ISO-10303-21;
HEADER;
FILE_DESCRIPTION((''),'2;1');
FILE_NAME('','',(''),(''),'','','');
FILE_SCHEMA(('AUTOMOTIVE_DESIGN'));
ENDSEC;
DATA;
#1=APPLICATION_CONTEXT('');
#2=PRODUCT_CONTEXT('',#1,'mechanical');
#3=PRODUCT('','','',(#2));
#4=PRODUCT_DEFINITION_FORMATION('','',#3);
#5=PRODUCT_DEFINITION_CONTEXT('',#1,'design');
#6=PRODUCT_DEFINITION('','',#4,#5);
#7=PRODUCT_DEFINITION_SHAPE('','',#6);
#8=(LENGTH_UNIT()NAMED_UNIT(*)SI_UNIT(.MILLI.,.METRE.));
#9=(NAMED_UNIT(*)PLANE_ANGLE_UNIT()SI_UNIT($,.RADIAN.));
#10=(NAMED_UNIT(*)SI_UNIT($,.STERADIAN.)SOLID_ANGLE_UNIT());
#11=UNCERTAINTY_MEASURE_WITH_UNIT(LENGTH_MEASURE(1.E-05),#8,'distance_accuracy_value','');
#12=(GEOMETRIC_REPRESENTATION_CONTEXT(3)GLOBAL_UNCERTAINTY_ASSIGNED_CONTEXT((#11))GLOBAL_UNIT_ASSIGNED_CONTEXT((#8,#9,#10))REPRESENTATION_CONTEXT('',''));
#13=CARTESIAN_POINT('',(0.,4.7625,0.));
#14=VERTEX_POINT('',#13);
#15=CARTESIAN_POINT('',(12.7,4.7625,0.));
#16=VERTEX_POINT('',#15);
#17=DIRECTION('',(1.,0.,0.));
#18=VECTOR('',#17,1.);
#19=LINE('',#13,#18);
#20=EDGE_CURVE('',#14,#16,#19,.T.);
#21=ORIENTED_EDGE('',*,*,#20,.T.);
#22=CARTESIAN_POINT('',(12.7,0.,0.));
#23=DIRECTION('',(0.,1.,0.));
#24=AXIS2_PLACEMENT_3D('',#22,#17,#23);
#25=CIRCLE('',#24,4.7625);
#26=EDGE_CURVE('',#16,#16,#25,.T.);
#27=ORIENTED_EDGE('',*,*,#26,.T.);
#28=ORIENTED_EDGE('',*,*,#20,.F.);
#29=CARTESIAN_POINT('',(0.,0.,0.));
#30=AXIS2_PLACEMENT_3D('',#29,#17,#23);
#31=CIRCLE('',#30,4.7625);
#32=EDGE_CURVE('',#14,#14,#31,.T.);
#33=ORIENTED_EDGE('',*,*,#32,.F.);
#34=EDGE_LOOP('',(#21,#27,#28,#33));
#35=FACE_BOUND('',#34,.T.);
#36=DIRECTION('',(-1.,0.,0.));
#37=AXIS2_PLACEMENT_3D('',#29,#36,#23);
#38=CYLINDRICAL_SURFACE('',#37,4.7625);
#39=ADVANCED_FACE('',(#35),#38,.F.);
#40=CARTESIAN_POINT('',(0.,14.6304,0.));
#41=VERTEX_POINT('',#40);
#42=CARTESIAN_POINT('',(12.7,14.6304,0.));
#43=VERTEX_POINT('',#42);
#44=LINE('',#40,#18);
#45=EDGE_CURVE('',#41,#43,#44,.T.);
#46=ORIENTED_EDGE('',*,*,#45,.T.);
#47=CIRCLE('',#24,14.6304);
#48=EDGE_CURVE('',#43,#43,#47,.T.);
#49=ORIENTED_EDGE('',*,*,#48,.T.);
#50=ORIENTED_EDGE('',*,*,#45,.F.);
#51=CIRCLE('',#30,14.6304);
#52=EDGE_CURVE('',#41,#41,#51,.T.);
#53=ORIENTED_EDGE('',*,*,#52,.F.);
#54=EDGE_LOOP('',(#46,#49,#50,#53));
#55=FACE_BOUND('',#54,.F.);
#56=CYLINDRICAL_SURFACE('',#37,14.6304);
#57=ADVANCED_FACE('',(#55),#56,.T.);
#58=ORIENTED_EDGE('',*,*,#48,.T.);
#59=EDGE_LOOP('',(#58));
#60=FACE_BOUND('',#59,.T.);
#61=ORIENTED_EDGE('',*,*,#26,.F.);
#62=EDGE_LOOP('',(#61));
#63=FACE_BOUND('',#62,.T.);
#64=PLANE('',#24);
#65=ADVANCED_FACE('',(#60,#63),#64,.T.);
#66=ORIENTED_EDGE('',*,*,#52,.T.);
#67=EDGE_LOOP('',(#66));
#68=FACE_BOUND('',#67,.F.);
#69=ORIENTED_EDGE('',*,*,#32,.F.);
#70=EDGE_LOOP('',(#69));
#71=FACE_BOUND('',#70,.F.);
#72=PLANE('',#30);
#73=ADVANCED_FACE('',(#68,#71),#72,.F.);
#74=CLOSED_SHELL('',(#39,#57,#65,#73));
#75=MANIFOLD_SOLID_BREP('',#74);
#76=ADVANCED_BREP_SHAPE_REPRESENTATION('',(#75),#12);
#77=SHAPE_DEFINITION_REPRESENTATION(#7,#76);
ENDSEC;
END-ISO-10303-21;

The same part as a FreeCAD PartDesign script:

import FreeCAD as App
import Part
import Sketcher

V = App.Vector
Q = App.Units.Quantity

doc = App.newDocument("Part")
body = doc.addObject("PartDesign::Body", "Body")

# Sketch on YZ plane
sketch1 = body.newObject("Sketcher::SketchObject", "Sketch")
sketch1.AttachmentSupport = (doc.getObject("YZ_Plane"), [""])
sketch1.MapMode = "FlatFace"
sketch1.addGeometry([
    Part.Circle(V(0, 0, 0), V(0, 0, 1), 14.6),
    Part.Circle(V(0, 0, 0), V(0, 0, 1), 4.8),
], False)
sketch1.addConstraint([
    Sketcher.Constraint("Coincident", 0, 3, -1, 1),
    Sketcher.Constraint("Coincident", 1, 3, -1, 1),
    Sketcher.Constraint("Diameter", 0, Q("1.152 in")),
    Sketcher.Constraint("Diameter", 1, Q("0.375 in")),
])
pad1 = body.newObject("PartDesign::Pad", "Pad")
pad1.Profile = sketch1
pad1.Length = Q("0.5 in")

doc.recompute()
